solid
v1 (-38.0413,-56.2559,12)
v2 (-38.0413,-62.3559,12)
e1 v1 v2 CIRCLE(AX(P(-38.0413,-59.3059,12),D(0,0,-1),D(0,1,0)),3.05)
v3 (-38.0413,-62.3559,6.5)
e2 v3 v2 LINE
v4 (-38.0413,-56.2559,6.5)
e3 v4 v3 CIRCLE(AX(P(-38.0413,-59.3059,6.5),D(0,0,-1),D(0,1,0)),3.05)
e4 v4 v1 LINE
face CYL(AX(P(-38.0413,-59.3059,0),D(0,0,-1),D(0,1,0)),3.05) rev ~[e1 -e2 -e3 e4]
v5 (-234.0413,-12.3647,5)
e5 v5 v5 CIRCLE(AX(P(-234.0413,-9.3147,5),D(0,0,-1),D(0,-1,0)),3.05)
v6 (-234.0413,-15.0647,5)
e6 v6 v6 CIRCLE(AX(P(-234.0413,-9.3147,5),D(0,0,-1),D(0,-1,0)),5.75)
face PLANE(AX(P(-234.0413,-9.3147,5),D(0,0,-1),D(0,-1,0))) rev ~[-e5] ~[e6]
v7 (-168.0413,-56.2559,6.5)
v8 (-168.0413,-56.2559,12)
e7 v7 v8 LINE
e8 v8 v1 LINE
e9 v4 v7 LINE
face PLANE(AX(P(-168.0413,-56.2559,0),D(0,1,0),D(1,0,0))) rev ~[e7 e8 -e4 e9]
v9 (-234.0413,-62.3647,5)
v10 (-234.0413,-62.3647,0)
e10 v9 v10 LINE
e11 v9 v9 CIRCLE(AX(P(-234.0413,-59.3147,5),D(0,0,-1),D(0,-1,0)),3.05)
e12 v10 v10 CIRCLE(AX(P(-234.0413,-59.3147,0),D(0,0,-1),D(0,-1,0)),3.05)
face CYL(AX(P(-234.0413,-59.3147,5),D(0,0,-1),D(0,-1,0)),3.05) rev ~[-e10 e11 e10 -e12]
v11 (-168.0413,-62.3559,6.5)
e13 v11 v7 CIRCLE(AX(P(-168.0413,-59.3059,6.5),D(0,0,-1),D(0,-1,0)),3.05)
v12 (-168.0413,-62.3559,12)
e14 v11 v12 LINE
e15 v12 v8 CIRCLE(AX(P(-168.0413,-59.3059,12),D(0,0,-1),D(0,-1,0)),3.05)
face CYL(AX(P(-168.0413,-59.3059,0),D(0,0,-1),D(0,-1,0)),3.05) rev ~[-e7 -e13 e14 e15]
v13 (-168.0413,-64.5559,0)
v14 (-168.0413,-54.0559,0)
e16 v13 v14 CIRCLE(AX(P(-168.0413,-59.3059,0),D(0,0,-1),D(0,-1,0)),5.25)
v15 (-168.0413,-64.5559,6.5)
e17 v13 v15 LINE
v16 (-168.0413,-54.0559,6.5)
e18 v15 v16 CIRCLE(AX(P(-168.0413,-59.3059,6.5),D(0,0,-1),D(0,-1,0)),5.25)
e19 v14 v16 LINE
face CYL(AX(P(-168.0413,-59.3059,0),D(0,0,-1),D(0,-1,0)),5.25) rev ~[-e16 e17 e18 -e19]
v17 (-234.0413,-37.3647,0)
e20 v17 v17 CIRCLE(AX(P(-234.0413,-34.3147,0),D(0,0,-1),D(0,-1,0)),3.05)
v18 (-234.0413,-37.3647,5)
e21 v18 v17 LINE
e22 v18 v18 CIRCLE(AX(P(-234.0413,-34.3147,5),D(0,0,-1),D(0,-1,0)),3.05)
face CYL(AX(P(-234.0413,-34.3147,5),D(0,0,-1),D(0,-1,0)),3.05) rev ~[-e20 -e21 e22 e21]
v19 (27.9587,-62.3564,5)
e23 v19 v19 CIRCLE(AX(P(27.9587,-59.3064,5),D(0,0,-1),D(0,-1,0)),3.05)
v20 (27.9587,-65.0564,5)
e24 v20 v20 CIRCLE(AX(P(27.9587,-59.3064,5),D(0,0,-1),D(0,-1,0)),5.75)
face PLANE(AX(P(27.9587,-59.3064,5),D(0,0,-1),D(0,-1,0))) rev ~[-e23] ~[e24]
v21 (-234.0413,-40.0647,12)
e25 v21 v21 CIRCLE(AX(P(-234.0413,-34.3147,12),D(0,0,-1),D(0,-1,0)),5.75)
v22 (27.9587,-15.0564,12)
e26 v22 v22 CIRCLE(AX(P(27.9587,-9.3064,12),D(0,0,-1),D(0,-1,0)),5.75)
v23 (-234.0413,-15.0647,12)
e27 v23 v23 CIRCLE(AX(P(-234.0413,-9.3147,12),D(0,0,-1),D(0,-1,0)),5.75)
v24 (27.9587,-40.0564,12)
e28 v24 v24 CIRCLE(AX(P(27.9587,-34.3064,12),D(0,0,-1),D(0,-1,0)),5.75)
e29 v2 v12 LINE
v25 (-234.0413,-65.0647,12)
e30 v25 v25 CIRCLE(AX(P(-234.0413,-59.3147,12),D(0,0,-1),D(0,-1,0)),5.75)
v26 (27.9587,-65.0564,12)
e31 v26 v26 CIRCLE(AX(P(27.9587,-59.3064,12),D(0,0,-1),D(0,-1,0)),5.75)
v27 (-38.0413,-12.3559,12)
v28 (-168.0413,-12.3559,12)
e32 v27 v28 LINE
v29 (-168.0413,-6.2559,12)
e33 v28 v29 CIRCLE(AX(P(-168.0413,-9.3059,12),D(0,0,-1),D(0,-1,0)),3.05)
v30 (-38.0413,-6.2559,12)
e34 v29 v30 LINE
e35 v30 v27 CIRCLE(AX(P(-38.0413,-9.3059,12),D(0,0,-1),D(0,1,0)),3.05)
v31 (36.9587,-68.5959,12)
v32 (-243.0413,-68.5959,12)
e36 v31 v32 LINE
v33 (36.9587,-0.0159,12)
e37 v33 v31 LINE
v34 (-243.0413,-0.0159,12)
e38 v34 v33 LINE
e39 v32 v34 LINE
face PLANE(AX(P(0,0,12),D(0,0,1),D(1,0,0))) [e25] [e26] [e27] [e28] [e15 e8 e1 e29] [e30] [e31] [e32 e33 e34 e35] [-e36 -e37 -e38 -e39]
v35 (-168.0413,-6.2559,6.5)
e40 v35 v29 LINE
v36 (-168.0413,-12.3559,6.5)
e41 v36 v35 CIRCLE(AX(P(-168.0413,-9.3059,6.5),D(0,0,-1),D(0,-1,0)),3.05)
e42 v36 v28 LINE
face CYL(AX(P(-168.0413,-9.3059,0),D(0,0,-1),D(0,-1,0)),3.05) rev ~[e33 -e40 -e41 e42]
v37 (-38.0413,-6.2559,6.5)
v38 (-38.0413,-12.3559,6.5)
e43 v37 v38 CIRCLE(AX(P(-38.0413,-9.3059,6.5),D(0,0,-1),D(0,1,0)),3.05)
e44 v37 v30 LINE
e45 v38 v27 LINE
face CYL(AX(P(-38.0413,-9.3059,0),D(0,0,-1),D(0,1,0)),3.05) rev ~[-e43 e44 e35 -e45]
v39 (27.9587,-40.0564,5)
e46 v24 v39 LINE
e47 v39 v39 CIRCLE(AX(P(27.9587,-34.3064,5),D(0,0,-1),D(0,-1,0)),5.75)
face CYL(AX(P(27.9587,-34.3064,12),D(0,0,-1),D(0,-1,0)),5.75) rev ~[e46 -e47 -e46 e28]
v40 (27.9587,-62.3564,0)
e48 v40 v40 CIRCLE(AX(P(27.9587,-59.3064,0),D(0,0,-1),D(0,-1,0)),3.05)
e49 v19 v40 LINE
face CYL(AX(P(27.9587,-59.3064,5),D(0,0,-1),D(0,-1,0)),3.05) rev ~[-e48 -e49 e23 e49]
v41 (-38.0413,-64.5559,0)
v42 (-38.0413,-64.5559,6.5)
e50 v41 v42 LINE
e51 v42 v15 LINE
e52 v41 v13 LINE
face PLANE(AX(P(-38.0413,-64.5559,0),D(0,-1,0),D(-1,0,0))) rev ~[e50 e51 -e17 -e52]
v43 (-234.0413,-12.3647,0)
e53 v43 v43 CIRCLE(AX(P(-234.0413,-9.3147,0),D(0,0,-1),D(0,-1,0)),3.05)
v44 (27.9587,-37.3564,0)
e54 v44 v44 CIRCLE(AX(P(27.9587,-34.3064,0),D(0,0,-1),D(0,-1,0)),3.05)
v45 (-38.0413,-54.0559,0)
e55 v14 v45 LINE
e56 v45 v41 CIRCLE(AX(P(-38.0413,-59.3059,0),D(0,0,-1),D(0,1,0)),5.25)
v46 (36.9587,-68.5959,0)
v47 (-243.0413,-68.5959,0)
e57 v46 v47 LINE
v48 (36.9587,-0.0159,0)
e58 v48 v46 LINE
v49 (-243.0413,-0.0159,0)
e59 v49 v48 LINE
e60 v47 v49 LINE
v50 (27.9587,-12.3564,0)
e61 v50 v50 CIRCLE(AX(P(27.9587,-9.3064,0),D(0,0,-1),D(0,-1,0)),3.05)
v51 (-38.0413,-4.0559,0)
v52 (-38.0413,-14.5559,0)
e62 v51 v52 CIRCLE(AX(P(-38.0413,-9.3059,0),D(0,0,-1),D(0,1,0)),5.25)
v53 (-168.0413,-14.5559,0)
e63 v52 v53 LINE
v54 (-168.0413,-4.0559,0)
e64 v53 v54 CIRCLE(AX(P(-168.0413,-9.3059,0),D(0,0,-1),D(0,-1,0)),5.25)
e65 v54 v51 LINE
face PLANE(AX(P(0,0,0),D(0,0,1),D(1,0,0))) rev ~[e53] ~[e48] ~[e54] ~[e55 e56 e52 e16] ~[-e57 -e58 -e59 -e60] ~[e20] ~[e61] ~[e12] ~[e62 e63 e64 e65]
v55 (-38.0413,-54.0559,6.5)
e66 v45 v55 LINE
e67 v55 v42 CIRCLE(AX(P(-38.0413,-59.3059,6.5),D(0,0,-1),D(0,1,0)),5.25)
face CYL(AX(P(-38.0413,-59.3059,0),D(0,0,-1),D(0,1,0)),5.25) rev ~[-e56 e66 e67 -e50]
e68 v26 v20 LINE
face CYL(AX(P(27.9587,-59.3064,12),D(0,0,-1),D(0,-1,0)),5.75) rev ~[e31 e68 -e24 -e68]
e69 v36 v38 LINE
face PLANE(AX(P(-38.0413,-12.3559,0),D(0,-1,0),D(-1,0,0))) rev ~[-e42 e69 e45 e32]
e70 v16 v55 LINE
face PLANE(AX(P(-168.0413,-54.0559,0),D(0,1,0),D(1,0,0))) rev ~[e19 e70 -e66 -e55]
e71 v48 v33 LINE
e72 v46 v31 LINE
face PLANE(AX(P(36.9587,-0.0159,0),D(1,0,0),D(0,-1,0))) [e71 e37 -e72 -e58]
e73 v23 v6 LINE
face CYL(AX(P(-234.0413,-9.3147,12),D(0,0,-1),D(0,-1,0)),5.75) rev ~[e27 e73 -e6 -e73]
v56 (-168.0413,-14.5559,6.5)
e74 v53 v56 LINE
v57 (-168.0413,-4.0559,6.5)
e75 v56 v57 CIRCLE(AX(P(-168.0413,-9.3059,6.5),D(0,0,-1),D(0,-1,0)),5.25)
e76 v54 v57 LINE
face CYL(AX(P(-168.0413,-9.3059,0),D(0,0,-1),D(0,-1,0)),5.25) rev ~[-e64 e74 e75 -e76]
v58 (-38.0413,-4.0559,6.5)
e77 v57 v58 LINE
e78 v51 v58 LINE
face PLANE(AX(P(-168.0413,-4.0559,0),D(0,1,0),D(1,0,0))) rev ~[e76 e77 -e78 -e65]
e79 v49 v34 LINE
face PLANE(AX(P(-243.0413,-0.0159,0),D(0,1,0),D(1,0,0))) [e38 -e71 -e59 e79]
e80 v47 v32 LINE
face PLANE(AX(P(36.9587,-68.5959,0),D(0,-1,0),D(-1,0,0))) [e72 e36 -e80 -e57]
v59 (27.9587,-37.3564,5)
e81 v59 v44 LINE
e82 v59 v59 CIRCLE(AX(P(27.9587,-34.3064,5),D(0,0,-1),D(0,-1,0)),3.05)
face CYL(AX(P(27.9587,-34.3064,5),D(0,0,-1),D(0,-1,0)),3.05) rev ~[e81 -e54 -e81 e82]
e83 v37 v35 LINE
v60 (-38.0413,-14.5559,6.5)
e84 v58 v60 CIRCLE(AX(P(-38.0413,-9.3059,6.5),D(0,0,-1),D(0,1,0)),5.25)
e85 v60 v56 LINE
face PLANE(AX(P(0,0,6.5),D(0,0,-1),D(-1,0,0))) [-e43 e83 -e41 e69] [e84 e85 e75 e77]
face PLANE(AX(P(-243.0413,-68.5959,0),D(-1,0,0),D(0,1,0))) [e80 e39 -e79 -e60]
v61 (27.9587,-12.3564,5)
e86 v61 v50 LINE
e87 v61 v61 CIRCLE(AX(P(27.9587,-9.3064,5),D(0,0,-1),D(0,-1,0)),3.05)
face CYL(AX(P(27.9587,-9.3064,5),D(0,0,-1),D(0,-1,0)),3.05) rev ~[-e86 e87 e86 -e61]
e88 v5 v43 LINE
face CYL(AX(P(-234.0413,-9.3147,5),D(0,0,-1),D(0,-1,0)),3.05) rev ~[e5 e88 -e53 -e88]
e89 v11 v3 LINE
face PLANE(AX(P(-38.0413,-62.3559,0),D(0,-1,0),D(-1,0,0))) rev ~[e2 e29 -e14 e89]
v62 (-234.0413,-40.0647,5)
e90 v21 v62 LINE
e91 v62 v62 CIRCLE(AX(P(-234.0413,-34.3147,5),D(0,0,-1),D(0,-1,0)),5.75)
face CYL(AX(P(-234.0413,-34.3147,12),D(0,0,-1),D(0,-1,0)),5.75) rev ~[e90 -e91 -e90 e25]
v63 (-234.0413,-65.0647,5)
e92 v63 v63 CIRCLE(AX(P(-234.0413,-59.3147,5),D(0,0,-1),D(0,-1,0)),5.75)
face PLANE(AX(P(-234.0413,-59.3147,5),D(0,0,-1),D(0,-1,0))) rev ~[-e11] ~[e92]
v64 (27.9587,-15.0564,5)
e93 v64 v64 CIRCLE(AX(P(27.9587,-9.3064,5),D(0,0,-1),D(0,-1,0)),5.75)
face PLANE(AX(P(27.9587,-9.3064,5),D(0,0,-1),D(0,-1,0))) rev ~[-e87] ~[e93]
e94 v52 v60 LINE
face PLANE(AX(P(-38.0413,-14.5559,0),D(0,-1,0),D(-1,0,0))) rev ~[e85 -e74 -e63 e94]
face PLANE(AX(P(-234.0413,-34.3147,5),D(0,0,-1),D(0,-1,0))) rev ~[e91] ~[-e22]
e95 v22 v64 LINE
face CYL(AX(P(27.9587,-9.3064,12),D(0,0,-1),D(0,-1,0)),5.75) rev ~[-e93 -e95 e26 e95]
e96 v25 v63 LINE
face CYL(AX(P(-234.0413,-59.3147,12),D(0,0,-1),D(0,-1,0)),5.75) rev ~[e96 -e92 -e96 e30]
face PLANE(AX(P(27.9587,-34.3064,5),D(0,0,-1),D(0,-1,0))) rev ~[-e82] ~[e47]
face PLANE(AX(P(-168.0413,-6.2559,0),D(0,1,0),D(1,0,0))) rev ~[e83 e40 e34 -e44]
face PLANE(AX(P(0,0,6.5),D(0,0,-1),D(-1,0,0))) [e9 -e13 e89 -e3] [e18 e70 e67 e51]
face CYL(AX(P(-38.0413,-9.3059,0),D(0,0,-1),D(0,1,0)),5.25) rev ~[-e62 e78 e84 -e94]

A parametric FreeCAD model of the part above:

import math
import FreeCAD as App
import Part
import Sketcher

V = App.Vector

doc = App.newDocument("Part")
body = doc.addObject("PartDesign::Body", "Body")

# Sketch on XY plane
sketch1 = body.newObject("Sketcher::SketchObject", "Sketch")
sketch1.AttachmentSupport = (doc.getObject("XY_Plane"), [""])
sketch1.MapMode = "FlatFace"
sketch1.addGeometry(Part.LineSegment(V(37, 0, 0), V(-243, 0, 0)), False)
sketch1.addGeometry(Part.LineSegment(V(-243, 0, 0), V(-243, -69, 0)), False)
sketch1.addGeometry(Part.LineSegment(V(-243, -69, 0), V(37, -69, 0)), False)
sketch1.addGeometry(Part.LineSegment(V(37, -69, 0), V(37, 0, 0)), False)
sketch1.addConstraint(Sketcher.Constraint("Coincident", 0, 2, 1, 1))
sketch1.addConstraint(Sketcher.Constraint("Coincident", 1, 2, 2, 1))
sketch1.addConstraint(Sketcher.Constraint("Coincident", 2, 2, 3, 1))
sketch1.addConstraint(Sketcher.Constraint("Coincident", 3, 2, 0, 1))
sketch1.addConstraint(Sketcher.Constraint("Horizontal", 0))
sketch1.addConstraint(Sketcher.Constraint("Vertical", 1))
sketch1.addConstraint(Sketcher.Constraint("Horizontal", 2))
sketch1.addConstraint(Sketcher.Constraint("Vertical", 3))
sketch1.addConstraint(Sketcher.Constraint("DistanceX", 0, 2, 0, 1, 280.0))
sketch1.addConstraint(Sketcher.Constraint("DistanceY", 1, 2, 1, 1, 68.58))
sketch1.addConstraint(Sketcher.Constraint("DistanceY", 0, 2, -1, 1, 0.016))
sketch1.addConstraint(Sketcher.Constraint("DistanceX", 0, 2, -1, 1, 243.0413))
pad1 = body.newObject("PartDesign::Pad", "Pad")
pad1.Profile = sketch1
pad1.Length = 12

# Sketch on XY plane
sketch2 = body.newObject("Sketcher::SketchObject", "Sketch001")
sketch2.AttachmentSupport = (doc.getObject("XY_Plane"), [""])
sketch2.MapMode = "FlatFace"
sketch2.addGeometry(Part.ArcOfCircle(Part.Circle(V(-38, -9.3, 0), V(0, 0, 1), 3), math.radians(-90), math.radians(90)), False)
sketch2.addGeometry(Part.LineSegment(V(-38, -12.4, 0), V(-168, -12.4, 0)), False)
sketch2.addGeometry(Part.ArcOfCircle(Part.Circle(V(-168, -9.3, 0), V(0, 0, 1), 3.1), math.radians(90), math.radians(270)), False)
sketch2.addGeometry(Part.LineSegment(V(-168, -6.3, 0), V(-38, -6.3, 0)), False)
sketch2.addGeometry(Part.ArcOfCircle(Part.Circle(V(-38, -59.3, 0), V(0, 0, 1), 3.1), math.radians(-90), math.radians(90)), False)
sketch2.addGeometry(Part.LineSegment(V(-38, -62.4, 0), V(-168, -62.4, 0)), False)
sketch2.addGeometry(Part.ArcOfCircle(Part.Circle(V(-168, -59.3, 0), V(0, 0, 1), 3), math.radians(90), math.radians(270)), False)
sketch2.addGeometry(Part.LineSegment(V(-168, -56.3, 0), V(-38, -56.3, 0)), False)
sketch2.addConstraint(Sketcher.Constraint("Tangent", 0, 1, 1, 1))
sketch2.addConstraint(Sketcher.Constraint("Tangent", 1, 2, 2, 2))
sketch2.addConstraint(Sketcher.Constraint("Tangent", 2, 1, 3, 1))
sketch2.addConstraint(Sketcher.Constraint("Tangent", 3, 2, 0, 2))
sketch2.addConstraint(Sketcher.Constraint("Tangent", 4, 1, 5, 1))
sketch2.addConstraint(Sketcher.Constraint("Tangent", 5, 2, 6, 2))
sketch2.addConstraint(Sketcher.Constraint("Tangent", 6, 1, 7, 1))
sketch2.addConstraint(Sketcher.Constraint("Tangent", 7, 2, 4, 2))
sketch2.addConstraint(Sketcher.Constraint("Horizontal", 1))
sketch2.addConstraint(Sketcher.Constraint("Horizontal", 3))
sketch2.addConstraint(Sketcher.Constraint("Horizontal", 5))
sketch2.addConstraint(Sketcher.Constraint("Horizontal", 7))
sketch2.addConstraint(Sketcher.Constraint("Equal", 2, 4))
sketch2.addConstraint(Sketcher.Constraint("Vertical", 0, 3, 4, 3))
sketch2.addConstraint(Sketcher.Constraint("Vertical", 2, 3, 6, 3))
sketch2.addConstraint(Sketcher.Constraint("Radius", 0, 3.05))
sketch2.addConstraint(Sketcher.Constraint("DistanceX", 1, 2, 1, 1, 130.0))
sketch2.addConstraint(Sketcher.Constraint("DistanceY", 4, 3, 0, 3, 50.0))
sketch2.addConstraint(Sketcher.Constraint("DistanceY", 0, 3, -1, 1, 9.306))
sketch2.addConstraint(Sketcher.Constraint("DistanceX", 0, 3, -1, 1, 38.0413))
pocket1 = body.newObject("PartDesign::Pocket", "Pocket")
pocket1.Profile = sketch2
pocket1.Length = 12
pocket1.Reversed = True

# Sketch on XY plane
sketch3 = body.newObject("Sketcher::SketchObject", "Sketch002")
sketch3.AttachmentSupport = (doc.getObject("XY_Plane"), [""])
sketch3.MapMode = "FlatFace"
sketch3.addGeometry(Part.ArcOfCircle(Part.Circle(V(-38, -9, 0), V(0, 0, 1), 5), math.radians(-90), math.radians(90)), False)
sketch3.addGeometry(Part.LineSegment(V(-38, -15, 0), V(-168, -15, 0)), False)
sketch3.addGeometry(Part.ArcOfCircle(Part.Circle(V(-168, -9, 0), V(0, 0, 1), 5), math.radians(90), math.radians(270)), False)
sketch3.addGeometry(Part.LineSegment(V(-168, -4, 0), V(-38, -4, 0)), False)
sketch3.addGeometry(Part.ArcOfCircle(Part.Circle(V(-38, -59, 0), V(0, 0, 1), 5), math.radians(-90), math.radians(90)), False)
sketch3.addGeometry(Part.LineSegment(V(-38, -65, 0), V(-168, -65, 0)), False)
sketch3.addGeometry(Part.ArcOfCircle(Part.Circle(V(-168, -59, 0), V(0, 0, 1), 5), math.radians(90), math.radians(270)), False)
sketch3.addGeometry(Part.LineSegment(V(-168, -54, 0), V(-38, -54, 0)), False)
sketch3.addConstraint(Sketcher.Constraint("Tangent", 0, 1, 1, 1))
sketch3.addConstraint(Sketcher.Constraint("Tangent", 1, 2, 2, 2))
sketch3.addConstraint(Sketcher.Constraint("Tangent", 2, 1, 3, 1))
sketch3.addConstraint(Sketcher.Constraint("Tangent", 3, 2, 0, 2))
sketch3.addConstraint(Sketcher.Constraint("Tangent", 4, 1, 5, 1))
sketch3.addConstraint(Sketcher.Constraint("Tangent", 5, 2, 6, 2))
sketch3.addConstraint(Sketcher.Constraint("Tangent", 6, 1, 7, 1))
sketch3.addConstraint(Sketcher.Constraint("Tangent", 7, 2, 4, 2))
sketch3.addConstraint(Sketcher.Constraint("Horizontal", 1))
sketch3.addConstraint(Sketcher.Constraint("Horizontal", 3))
sketch3.addConstraint(Sketcher.Constraint("Horizontal", 5))
sketch3.addConstraint(Sketcher.Constraint("Horizontal", 7))
sketch3.addConstraint(Sketcher.Constraint("Equal", 2, 4))
sketch3.addConstraint(Sketcher.Constraint("Vertical", 0, 3, 4, 3))
sketch3.addConstraint(Sketcher.Constraint("Vertical", 2, 3, 6, 3))
sketch3.addConstraint(Sketcher.Constraint("Radius", 0, 5.25))
sketch3.addConstraint(Sketcher.Constraint("DistanceX", 1, 2, 1, 1, 130.0))
sketch3.addConstraint(Sketcher.Constraint("DistanceY", 4, 3, 0, 3, 50.0))
sketch3.addConstraint(Sketcher.Constraint("DistanceY", 0, 3, -1, 1, 9.306))
sketch3.addConstraint(Sketcher.Constraint("DistanceX", 0, 3, -1, 1, 38.0413))
pocket2 = body.newObject("PartDesign::Pocket", "Pocket001")
pocket2.Profile = sketch3
pocket2.Length = 6.5
pocket2.Reversed = True

# Sketch on XY plane
sketch4 = body.newObject("Sketcher::SketchObject", "Sketch003")
sketch4.AttachmentSupport = (doc.getObject("XY_Plane"), [""])
sketch4.MapMode = "FlatFace"
sketch4.AttachmentOffset = App.Placement(V(0, 0, 12), App.Rotation())
sketch4.addGeometry(Part.Circle(V(28, -59.3, 0), V(0, 0, 1), 3), False)
sketch4.addGeometry(Part.Circle(V(28, -34.3, 0), V(0, 0, 1), 3), False)
sketch4.addGeometry(Part.Circle(V(28, -9.3, 0), V(0, 0, 1), 3), False)
sketch4.addGeometry(Part.Circle(V(-234, -59.3, 0), V(0, 0, 1), 3), False)
sketch4.addGeometry(Part.Circle(V(-234, -34.3, 0), V(0, 0, 1), 3), False)
sketch4.addGeometry(Part.Circle(V(-234, -9.3, 0), V(0, 0, 1), 3), False)
sketch4.addConstraint(Sketcher.Constraint("Equal", 0, 1))
sketch4.addConstraint(Sketcher.Constraint("Equal", 1, 2))
sketch4.addConstraint(Sketcher.Constraint("Equal", 2, 3))
sketch4.addConstraint(Sketcher.Constraint("Equal", 3, 4))
sketch4.addConstraint(Sketcher.Constraint("Equal", 4, 5))
sketch4.addConstraint(Sketcher.Constraint("Vertical", 0, 3, 1, 3))
sketch4.addConstraint(Sketcher.Constraint("Vertical", 1, 3, 2, 3))
sketch4.addConstraint(Sketcher.Constraint("Vertical", 3, 3, 4, 3))
sketch4.addConstraint(Sketcher.Constraint("Vertical", 4, 3, 5, 3))
sketch4.addConstraint(Sketcher.Constraint("Diameter", 0, 6.1))
sketch4.addConstraint(Sketcher.Constraint("DistanceY", 0, 3, 1, 3, 25.0))
sketch4.addConstraint(Sketcher.Constraint("DistanceY", 1, 3, 2, 3, 25.0))
sketch4.addConstraint(Sketcher.Constraint("DistanceX", 3, 3, 0, 3, 262.0))
sketch4.addConstraint(Sketcher.Constraint("DistanceY", 3, 3, 4, 3, 25.0))
sketch4.addConstraint(Sketcher.Constraint("DistanceY", 4, 3, 5, 3, 25.0))
sketch4.addConstraint(Sketcher.Constraint("DistanceX", -1, 1, 0, 3, 27.9587))
sketch4.addConstraint(Sketcher.Constraint("DistanceY", 0, 3, -1, 1, 59.3064))
sketch4.addConstraint(Sketcher.Constraint("DistanceY", 3, 3, -1, 1, 59.3147))
doc.recompute()
hole = body.newObject("PartDesign::Hole", "Hole")
hole.Profile = sketch4
hole.ThreadType = "None"
hole.Diameter = 6.1
hole.DepthType = "ThroughAll"
hole.HoleCutType = "Counterbore"
hole.HoleCutDiameter = 11.5
hole.HoleCutDepth = 7

doc.recompute()
